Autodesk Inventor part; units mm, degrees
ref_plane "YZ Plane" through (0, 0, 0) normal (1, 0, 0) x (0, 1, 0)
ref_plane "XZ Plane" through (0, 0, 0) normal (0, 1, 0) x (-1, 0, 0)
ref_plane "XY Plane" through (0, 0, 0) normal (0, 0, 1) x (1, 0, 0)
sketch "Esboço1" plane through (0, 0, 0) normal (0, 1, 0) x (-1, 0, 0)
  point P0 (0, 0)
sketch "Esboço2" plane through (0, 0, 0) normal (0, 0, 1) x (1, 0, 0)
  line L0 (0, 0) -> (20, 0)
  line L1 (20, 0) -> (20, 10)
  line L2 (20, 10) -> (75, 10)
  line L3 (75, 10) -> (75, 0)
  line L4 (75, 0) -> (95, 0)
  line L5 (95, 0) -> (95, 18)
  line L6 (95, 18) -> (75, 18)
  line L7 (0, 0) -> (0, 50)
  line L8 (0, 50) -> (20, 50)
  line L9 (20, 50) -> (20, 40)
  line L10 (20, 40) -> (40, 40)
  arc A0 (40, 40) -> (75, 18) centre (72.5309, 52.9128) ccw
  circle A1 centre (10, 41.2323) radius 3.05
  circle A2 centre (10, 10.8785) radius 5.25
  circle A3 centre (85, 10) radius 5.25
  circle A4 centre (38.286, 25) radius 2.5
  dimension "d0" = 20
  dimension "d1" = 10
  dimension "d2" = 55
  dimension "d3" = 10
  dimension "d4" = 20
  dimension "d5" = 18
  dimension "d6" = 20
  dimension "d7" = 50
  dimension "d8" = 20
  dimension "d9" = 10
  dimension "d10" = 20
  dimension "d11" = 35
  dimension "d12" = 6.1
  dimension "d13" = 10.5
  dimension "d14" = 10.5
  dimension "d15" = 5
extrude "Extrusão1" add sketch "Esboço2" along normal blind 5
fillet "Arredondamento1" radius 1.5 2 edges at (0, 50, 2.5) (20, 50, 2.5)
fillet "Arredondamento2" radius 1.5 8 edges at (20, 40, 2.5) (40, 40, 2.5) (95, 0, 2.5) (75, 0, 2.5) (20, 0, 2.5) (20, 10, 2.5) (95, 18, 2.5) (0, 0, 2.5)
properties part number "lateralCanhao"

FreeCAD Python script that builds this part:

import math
import FreeCAD as App
import Part
import Sketcher

V = App.Vector
Q = App.Units.Quantity


def edges_at(feature, points):
    """Names of the edges that pass closest to the given points."""
    edges = feature.Shape.Edges
    near = lambda p: min(range(len(edges)), key=lambda i: edges[i].distToShape(Part.Vertex(*p))[0])
    return sorted({f"Edge{near(p) + 1}" for p in points})

doc = App.newDocument("Part")
body = doc.addObject("PartDesign::Body", "Body")

sketch1 = body.newObject("Sketcher::SketchObject", "Sketch")
sketch1.AttachmentSupport = (doc.getObject("XY_Plane"), [""])
sketch1.MapMode = "FlatFace"
sketch1.addGeometry([
    Part.LineSegment(V(0, 50, 0), V(0, 0, 0)),
    Part.LineSegment(V(0, 0, 0), V(20, 0, 0)),
    Part.LineSegment(V(20, 0, 0), V(20, 10, 0)),
    Part.LineSegment(V(20, 10, 0), V(75, 10, 0)),
    Part.LineSegment(V(75, 10, 0), V(75, 0, 0)),
    Part.LineSegment(V(75, 0, 0), V(95, 0, 0)),
    Part.LineSegment(V(95, 0, 0), V(95, 18, 0)),
    Part.LineSegment(V(95, 18, 0), V(75, 18, 0)),
    Part.ArcOfCircle(Part.Circle(V(72.5, 52.9, 0), V(0, 0, 1), 35), math.radians(-158), math.radians(-86)),
    Part.LineSegment(V(40, 40, 0), V(20, 40, 0)),
    Part.LineSegment(V(20, 40, 0), V(20, 50, 0)),
    Part.LineSegment(V(20, 50, 0), V(0, 50, 0)),
    Part.Circle(V(10, 10.9, 0), V(0, 0, 1), 5.2),
    Part.Circle(V(85, 10, 0), V(0, 0, 1), 5.2),
    Part.Circle(V(38.3, 25, 0), V(0, 0, 1), 2.5),
    Part.Circle(V(10, 41.2, 0), V(0, 0, 1), 3),
], False)
sketch1.addConstraint([
    Sketcher.Constraint("Coincident", 0, 2, 1, 1),
    Sketcher.Constraint("Coincident", 1, 2, 2, 1),
    Sketcher.Constraint("Coincident", 2, 2, 3, 1),
    Sketcher.Constraint("Coincident", 3, 2, 4, 1),
    Sketcher.Constraint("Coincident", 4, 2, 5, 1),
    Sketcher.Constraint("Coincident", 5, 2, 6, 1),
    Sketcher.Constraint("Coincident", 6, 2, 7, 1),
    Sketcher.Constraint("Coincident", 7, 2, 8, 2),
    Sketcher.Constraint("Coincident", 8, 1, 9, 1),
    Sketcher.Constraint("Coincident", 9, 2, 10, 1),
    Sketcher.Constraint("Coincident", 10, 2, 11, 1),
    Sketcher.Constraint("Coincident", 11, 2, 0, 1),
    Sketcher.Constraint("Vertical", 0),
    Sketcher.Constraint("Horizontal", 1),
    Sketcher.Constraint("Vertical", 2),
    Sketcher.Constraint("Horizontal", 3),
    Sketcher.Constraint("Vertical", 4),
    Sketcher.Constraint("Horizontal", 5),
    Sketcher.Constraint("Vertical", 6),
    Sketcher.Constraint("Horizontal", 7),
    Sketcher.Constraint("Horizontal", 9),
    Sketcher.Constraint("Vertical", 10),
    Sketcher.Constraint("Horizontal", 11),
    Sketcher.Constraint("Coincident", 0, 2, -1, 1),
    Sketcher.Constraint("Equal", 12, 13),
    Sketcher.Constraint("PointOnObject", 4, 2, -1),
    Sketcher.Constraint("Horizontal", 13, 3, 2, 2),
    Sketcher.Constraint("Vertical", 12, 3, 15, 3),
    Sketcher.Constraint("Vertical", 4, 2, 7, 2),
    Sketcher.Constraint("Vertical", 2, 2, 9, 2),
    Sketcher.Constraint("Equal", 1, 5),
    Sketcher.Constraint("Equal", 7, 9),
    Sketcher.Constraint("Equal", 4, 10),
    Sketcher.Constraint("Diameter", 14, Q("5 mm")),
    Sketcher.Constraint("Radius", 8, Q("35 mm")),
    Sketcher.Constraint("Diameter", 12, Q("10.5 mm")),
    Sketcher.Constraint("Diameter", 15, Q("6.1 mm")),
    Sketcher.Constraint("DistanceX", 1, 1, 1, 2, Q("20 mm")),
    Sketcher.Constraint("DistanceX", 3, 1, 3, 2, Q("55 mm")),
    Sketcher.Constraint("DistanceY", 0, 2, 0, 1, Q("50 mm")),
    Sketcher.Constraint("DistanceY", 2, 1, 2, 2, Q("10 mm")),
    Sketcher.Constraint("DistanceY", 6, 1, 6, 2, Q("18 mm")),
    Sketcher.Constraint("DistanceX", -1, 1, 12, 3, Q("10 mm")),
    Sketcher.Constraint("DistanceX", 3, 2, 13, 3, Q("10 mm")),
    Sketcher.Constraint("DistanceY", -1, 1, 14, 3, Q("25 mm")),
    Sketcher.Constraint("DistanceX", -1, 1, 14, 3, Q("38.286 mm")),
    Sketcher.Constraint("DistanceY", -1, 1, 12, 3, Q("10.8785 mm")),
    Sketcher.Constraint("DistanceY", -1, 1, 15, 3, Q("41.2323 mm")),
])
pad1 = body.newObject("PartDesign::Pad", "Pad")
pad1.Profile = sketch1
pad1.Length = 5
doc.recompute()

fillet = body.newObject("PartDesign::Fillet", "Fillet")
fillet.Base = (pad1, edges_at(pad1, [(0, 50, 2.5), (20, 50, 2.5)]))
fillet.Radius = 1.5
doc.recompute()

fillet2 = body.newObject("PartDesign::Fillet", "Fillet001")
fillet2.Base = (fillet, edges_at(fillet, [
    (20, 40, 2.5),
    (40, 40, 2.5),
    (95, 0, 2.5),
    (75, 0, 2.5),
    (20, 0, 2.5),
    (20, 10, 2.5),
    (95, 18, 2.5),
    (0, 0, 2.5),
]))
fillet2.Radius = 1.5

doc.recompute()
